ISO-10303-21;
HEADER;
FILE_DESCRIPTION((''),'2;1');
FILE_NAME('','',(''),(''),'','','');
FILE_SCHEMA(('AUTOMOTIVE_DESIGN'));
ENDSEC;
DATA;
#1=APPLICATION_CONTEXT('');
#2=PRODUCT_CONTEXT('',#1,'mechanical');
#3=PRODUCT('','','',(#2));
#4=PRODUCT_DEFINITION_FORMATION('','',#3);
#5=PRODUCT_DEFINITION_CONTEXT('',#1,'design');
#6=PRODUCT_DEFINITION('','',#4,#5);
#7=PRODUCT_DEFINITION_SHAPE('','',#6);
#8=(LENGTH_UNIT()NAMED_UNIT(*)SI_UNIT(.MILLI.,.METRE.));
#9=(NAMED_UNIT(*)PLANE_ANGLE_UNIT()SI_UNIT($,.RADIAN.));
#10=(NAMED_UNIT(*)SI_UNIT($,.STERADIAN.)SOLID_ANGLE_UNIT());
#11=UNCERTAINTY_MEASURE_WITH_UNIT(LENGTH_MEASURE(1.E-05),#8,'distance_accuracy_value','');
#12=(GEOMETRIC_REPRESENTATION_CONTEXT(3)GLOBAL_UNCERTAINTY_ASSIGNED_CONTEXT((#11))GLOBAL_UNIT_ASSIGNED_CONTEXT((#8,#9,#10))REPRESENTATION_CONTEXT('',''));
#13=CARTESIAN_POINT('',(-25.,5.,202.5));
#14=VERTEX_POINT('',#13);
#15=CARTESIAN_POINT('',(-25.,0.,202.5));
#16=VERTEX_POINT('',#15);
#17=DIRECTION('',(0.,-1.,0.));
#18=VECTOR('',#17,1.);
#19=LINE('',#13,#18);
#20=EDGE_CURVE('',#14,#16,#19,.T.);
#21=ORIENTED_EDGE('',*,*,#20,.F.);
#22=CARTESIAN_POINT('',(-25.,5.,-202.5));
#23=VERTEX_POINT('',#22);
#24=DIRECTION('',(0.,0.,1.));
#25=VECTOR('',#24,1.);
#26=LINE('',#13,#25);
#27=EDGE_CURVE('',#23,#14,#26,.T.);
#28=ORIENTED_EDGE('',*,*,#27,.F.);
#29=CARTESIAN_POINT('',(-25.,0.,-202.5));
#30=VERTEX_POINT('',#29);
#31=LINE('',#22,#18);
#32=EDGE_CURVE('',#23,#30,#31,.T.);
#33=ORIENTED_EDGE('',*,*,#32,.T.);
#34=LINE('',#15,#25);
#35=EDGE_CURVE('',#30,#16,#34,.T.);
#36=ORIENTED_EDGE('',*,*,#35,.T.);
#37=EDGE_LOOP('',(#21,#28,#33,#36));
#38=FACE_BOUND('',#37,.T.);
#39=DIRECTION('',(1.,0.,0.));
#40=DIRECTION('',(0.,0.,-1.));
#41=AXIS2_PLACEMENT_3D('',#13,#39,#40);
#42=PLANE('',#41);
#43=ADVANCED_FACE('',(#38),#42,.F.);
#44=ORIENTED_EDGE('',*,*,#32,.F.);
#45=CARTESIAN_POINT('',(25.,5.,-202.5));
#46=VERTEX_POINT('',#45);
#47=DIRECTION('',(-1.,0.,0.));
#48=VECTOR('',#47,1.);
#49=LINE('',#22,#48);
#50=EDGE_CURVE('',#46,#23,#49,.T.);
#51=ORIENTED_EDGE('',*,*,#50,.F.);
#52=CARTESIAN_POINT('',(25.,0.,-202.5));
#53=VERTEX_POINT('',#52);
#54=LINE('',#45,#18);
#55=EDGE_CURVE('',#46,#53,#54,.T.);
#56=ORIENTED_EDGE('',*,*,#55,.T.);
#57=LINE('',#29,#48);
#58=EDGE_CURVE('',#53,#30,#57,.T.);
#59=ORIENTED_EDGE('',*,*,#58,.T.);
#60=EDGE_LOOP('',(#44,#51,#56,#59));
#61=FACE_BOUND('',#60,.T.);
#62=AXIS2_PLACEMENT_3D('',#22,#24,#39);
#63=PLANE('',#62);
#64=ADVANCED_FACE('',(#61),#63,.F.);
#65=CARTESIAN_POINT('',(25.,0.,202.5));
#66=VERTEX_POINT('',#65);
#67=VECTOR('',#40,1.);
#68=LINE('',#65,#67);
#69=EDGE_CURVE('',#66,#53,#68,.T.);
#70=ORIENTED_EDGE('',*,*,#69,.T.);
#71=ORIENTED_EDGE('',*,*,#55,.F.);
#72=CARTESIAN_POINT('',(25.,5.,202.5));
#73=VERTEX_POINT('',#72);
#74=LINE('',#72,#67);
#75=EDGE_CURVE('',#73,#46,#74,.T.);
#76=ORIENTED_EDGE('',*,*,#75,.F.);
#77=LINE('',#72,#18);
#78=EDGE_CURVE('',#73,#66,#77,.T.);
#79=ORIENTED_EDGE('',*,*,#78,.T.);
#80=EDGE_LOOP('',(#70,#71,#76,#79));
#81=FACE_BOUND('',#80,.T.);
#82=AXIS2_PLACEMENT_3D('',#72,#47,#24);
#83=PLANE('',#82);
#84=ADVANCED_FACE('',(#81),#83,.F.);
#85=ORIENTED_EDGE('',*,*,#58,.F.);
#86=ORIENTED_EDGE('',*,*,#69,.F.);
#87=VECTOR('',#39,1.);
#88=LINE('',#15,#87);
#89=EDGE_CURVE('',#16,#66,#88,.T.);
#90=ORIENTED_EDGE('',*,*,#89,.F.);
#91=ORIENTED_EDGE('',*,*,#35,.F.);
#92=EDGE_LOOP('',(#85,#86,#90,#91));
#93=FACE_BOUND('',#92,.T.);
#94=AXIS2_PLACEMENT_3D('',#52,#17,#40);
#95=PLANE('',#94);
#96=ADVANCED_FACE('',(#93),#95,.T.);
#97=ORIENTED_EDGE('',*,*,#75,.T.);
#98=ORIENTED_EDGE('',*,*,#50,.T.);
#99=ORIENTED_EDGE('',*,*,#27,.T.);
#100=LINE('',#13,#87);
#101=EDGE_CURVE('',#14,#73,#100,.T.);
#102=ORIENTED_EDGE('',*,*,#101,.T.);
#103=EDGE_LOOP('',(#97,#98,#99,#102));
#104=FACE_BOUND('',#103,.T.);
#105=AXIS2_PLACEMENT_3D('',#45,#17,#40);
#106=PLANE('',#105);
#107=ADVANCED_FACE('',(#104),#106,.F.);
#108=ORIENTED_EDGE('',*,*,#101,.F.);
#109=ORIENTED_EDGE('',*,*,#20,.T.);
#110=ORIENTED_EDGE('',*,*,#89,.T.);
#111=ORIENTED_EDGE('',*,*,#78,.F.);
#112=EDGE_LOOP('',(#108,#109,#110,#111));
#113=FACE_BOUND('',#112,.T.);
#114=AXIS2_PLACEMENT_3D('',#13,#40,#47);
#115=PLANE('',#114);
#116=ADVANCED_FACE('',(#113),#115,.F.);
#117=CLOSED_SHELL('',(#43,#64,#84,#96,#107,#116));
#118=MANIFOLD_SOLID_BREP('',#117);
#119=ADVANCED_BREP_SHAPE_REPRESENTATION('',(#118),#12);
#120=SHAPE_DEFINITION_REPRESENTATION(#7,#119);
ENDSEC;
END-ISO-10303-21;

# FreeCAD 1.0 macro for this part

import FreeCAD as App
import Part
import Sketcher

V = App.Vector
Q = App.Units.Quantity


def add_polygon(sketch, points):
    """Adds a closed chain of lines whose ends are joined by coincident constraints."""
    first, n = sketch.GeometryCount, len(points)
    for a, b in zip(points, points[1:] + points[:1]):
        sketch.addGeometry(Part.LineSegment(App.Vector(*a, 0), App.Vector(*b, 0)), False)
    for i in range(n):
        sketch.addConstraint(Sketcher.Constraint("Coincident", first + i, 2, first + (i + 1) % n, 1))

doc = App.newDocument("Part")
params = doc.addObject("Spreadsheet::Sheet", "Params")
for row, (alias, value) in enumerate([
    ("sketch1_width", "50 mm"),
    ("sketch1_height", "405 mm"),
    ("pad1_length", "5 mm"),
], start=1):
    params.set(f"A{row}", alias)
    params.set(f"B{row}", "=" + value)
    params.setAlias(f"B{row}", alias)

body = doc.addObject("PartDesign::Body", "Body")

# Sketch on XZ plane
sketch1 = doc.addObject("Sketcher::SketchObject", "Sketch")
body.addObject(sketch1)
sketch1.AttachmentSupport = (doc.XZ_Plane, [""])
sketch1.MapMode = "FlatFace"
add_polygon(sketch1, [(-25, -202), (-25, 202), (25, 202), (25, -202)])  # lines 0-3
sketch1.addConstraint(Sketcher.Constraint("Vertical", 0))
sketch1.addConstraint(Sketcher.Constraint("Horizontal", 1))
sketch1.addConstraint(Sketcher.Constraint("Vertical", 2))
sketch1.addConstraint(Sketcher.Constraint("Horizontal", 3))
sketch1.addConstraint(Sketcher.Constraint("Symmetric", 0, 2, 2, 2, -1, 1))
sketch1.addConstraint(Sketcher.Constraint("DistanceX", 1, 1, 1, 2, Q("50 mm")))
sketch1.addConstraint(Sketcher.Constraint("DistanceY", 0, 1, 0, 2, Q("405 mm")))
sketch1.setExpression("Constraints[9]", "Params.sketch1_width")
sketch1.setExpression("Constraints[10]", "Params.sketch1_height")
pad1 = doc.addObject("PartDesign::Pad", "Pad")
body.addObject(pad1)
pad1.Profile = sketch1
pad1.setExpression("Length", "Params.pad1_length")
pad1.Reversed = True

doc.recompute()
